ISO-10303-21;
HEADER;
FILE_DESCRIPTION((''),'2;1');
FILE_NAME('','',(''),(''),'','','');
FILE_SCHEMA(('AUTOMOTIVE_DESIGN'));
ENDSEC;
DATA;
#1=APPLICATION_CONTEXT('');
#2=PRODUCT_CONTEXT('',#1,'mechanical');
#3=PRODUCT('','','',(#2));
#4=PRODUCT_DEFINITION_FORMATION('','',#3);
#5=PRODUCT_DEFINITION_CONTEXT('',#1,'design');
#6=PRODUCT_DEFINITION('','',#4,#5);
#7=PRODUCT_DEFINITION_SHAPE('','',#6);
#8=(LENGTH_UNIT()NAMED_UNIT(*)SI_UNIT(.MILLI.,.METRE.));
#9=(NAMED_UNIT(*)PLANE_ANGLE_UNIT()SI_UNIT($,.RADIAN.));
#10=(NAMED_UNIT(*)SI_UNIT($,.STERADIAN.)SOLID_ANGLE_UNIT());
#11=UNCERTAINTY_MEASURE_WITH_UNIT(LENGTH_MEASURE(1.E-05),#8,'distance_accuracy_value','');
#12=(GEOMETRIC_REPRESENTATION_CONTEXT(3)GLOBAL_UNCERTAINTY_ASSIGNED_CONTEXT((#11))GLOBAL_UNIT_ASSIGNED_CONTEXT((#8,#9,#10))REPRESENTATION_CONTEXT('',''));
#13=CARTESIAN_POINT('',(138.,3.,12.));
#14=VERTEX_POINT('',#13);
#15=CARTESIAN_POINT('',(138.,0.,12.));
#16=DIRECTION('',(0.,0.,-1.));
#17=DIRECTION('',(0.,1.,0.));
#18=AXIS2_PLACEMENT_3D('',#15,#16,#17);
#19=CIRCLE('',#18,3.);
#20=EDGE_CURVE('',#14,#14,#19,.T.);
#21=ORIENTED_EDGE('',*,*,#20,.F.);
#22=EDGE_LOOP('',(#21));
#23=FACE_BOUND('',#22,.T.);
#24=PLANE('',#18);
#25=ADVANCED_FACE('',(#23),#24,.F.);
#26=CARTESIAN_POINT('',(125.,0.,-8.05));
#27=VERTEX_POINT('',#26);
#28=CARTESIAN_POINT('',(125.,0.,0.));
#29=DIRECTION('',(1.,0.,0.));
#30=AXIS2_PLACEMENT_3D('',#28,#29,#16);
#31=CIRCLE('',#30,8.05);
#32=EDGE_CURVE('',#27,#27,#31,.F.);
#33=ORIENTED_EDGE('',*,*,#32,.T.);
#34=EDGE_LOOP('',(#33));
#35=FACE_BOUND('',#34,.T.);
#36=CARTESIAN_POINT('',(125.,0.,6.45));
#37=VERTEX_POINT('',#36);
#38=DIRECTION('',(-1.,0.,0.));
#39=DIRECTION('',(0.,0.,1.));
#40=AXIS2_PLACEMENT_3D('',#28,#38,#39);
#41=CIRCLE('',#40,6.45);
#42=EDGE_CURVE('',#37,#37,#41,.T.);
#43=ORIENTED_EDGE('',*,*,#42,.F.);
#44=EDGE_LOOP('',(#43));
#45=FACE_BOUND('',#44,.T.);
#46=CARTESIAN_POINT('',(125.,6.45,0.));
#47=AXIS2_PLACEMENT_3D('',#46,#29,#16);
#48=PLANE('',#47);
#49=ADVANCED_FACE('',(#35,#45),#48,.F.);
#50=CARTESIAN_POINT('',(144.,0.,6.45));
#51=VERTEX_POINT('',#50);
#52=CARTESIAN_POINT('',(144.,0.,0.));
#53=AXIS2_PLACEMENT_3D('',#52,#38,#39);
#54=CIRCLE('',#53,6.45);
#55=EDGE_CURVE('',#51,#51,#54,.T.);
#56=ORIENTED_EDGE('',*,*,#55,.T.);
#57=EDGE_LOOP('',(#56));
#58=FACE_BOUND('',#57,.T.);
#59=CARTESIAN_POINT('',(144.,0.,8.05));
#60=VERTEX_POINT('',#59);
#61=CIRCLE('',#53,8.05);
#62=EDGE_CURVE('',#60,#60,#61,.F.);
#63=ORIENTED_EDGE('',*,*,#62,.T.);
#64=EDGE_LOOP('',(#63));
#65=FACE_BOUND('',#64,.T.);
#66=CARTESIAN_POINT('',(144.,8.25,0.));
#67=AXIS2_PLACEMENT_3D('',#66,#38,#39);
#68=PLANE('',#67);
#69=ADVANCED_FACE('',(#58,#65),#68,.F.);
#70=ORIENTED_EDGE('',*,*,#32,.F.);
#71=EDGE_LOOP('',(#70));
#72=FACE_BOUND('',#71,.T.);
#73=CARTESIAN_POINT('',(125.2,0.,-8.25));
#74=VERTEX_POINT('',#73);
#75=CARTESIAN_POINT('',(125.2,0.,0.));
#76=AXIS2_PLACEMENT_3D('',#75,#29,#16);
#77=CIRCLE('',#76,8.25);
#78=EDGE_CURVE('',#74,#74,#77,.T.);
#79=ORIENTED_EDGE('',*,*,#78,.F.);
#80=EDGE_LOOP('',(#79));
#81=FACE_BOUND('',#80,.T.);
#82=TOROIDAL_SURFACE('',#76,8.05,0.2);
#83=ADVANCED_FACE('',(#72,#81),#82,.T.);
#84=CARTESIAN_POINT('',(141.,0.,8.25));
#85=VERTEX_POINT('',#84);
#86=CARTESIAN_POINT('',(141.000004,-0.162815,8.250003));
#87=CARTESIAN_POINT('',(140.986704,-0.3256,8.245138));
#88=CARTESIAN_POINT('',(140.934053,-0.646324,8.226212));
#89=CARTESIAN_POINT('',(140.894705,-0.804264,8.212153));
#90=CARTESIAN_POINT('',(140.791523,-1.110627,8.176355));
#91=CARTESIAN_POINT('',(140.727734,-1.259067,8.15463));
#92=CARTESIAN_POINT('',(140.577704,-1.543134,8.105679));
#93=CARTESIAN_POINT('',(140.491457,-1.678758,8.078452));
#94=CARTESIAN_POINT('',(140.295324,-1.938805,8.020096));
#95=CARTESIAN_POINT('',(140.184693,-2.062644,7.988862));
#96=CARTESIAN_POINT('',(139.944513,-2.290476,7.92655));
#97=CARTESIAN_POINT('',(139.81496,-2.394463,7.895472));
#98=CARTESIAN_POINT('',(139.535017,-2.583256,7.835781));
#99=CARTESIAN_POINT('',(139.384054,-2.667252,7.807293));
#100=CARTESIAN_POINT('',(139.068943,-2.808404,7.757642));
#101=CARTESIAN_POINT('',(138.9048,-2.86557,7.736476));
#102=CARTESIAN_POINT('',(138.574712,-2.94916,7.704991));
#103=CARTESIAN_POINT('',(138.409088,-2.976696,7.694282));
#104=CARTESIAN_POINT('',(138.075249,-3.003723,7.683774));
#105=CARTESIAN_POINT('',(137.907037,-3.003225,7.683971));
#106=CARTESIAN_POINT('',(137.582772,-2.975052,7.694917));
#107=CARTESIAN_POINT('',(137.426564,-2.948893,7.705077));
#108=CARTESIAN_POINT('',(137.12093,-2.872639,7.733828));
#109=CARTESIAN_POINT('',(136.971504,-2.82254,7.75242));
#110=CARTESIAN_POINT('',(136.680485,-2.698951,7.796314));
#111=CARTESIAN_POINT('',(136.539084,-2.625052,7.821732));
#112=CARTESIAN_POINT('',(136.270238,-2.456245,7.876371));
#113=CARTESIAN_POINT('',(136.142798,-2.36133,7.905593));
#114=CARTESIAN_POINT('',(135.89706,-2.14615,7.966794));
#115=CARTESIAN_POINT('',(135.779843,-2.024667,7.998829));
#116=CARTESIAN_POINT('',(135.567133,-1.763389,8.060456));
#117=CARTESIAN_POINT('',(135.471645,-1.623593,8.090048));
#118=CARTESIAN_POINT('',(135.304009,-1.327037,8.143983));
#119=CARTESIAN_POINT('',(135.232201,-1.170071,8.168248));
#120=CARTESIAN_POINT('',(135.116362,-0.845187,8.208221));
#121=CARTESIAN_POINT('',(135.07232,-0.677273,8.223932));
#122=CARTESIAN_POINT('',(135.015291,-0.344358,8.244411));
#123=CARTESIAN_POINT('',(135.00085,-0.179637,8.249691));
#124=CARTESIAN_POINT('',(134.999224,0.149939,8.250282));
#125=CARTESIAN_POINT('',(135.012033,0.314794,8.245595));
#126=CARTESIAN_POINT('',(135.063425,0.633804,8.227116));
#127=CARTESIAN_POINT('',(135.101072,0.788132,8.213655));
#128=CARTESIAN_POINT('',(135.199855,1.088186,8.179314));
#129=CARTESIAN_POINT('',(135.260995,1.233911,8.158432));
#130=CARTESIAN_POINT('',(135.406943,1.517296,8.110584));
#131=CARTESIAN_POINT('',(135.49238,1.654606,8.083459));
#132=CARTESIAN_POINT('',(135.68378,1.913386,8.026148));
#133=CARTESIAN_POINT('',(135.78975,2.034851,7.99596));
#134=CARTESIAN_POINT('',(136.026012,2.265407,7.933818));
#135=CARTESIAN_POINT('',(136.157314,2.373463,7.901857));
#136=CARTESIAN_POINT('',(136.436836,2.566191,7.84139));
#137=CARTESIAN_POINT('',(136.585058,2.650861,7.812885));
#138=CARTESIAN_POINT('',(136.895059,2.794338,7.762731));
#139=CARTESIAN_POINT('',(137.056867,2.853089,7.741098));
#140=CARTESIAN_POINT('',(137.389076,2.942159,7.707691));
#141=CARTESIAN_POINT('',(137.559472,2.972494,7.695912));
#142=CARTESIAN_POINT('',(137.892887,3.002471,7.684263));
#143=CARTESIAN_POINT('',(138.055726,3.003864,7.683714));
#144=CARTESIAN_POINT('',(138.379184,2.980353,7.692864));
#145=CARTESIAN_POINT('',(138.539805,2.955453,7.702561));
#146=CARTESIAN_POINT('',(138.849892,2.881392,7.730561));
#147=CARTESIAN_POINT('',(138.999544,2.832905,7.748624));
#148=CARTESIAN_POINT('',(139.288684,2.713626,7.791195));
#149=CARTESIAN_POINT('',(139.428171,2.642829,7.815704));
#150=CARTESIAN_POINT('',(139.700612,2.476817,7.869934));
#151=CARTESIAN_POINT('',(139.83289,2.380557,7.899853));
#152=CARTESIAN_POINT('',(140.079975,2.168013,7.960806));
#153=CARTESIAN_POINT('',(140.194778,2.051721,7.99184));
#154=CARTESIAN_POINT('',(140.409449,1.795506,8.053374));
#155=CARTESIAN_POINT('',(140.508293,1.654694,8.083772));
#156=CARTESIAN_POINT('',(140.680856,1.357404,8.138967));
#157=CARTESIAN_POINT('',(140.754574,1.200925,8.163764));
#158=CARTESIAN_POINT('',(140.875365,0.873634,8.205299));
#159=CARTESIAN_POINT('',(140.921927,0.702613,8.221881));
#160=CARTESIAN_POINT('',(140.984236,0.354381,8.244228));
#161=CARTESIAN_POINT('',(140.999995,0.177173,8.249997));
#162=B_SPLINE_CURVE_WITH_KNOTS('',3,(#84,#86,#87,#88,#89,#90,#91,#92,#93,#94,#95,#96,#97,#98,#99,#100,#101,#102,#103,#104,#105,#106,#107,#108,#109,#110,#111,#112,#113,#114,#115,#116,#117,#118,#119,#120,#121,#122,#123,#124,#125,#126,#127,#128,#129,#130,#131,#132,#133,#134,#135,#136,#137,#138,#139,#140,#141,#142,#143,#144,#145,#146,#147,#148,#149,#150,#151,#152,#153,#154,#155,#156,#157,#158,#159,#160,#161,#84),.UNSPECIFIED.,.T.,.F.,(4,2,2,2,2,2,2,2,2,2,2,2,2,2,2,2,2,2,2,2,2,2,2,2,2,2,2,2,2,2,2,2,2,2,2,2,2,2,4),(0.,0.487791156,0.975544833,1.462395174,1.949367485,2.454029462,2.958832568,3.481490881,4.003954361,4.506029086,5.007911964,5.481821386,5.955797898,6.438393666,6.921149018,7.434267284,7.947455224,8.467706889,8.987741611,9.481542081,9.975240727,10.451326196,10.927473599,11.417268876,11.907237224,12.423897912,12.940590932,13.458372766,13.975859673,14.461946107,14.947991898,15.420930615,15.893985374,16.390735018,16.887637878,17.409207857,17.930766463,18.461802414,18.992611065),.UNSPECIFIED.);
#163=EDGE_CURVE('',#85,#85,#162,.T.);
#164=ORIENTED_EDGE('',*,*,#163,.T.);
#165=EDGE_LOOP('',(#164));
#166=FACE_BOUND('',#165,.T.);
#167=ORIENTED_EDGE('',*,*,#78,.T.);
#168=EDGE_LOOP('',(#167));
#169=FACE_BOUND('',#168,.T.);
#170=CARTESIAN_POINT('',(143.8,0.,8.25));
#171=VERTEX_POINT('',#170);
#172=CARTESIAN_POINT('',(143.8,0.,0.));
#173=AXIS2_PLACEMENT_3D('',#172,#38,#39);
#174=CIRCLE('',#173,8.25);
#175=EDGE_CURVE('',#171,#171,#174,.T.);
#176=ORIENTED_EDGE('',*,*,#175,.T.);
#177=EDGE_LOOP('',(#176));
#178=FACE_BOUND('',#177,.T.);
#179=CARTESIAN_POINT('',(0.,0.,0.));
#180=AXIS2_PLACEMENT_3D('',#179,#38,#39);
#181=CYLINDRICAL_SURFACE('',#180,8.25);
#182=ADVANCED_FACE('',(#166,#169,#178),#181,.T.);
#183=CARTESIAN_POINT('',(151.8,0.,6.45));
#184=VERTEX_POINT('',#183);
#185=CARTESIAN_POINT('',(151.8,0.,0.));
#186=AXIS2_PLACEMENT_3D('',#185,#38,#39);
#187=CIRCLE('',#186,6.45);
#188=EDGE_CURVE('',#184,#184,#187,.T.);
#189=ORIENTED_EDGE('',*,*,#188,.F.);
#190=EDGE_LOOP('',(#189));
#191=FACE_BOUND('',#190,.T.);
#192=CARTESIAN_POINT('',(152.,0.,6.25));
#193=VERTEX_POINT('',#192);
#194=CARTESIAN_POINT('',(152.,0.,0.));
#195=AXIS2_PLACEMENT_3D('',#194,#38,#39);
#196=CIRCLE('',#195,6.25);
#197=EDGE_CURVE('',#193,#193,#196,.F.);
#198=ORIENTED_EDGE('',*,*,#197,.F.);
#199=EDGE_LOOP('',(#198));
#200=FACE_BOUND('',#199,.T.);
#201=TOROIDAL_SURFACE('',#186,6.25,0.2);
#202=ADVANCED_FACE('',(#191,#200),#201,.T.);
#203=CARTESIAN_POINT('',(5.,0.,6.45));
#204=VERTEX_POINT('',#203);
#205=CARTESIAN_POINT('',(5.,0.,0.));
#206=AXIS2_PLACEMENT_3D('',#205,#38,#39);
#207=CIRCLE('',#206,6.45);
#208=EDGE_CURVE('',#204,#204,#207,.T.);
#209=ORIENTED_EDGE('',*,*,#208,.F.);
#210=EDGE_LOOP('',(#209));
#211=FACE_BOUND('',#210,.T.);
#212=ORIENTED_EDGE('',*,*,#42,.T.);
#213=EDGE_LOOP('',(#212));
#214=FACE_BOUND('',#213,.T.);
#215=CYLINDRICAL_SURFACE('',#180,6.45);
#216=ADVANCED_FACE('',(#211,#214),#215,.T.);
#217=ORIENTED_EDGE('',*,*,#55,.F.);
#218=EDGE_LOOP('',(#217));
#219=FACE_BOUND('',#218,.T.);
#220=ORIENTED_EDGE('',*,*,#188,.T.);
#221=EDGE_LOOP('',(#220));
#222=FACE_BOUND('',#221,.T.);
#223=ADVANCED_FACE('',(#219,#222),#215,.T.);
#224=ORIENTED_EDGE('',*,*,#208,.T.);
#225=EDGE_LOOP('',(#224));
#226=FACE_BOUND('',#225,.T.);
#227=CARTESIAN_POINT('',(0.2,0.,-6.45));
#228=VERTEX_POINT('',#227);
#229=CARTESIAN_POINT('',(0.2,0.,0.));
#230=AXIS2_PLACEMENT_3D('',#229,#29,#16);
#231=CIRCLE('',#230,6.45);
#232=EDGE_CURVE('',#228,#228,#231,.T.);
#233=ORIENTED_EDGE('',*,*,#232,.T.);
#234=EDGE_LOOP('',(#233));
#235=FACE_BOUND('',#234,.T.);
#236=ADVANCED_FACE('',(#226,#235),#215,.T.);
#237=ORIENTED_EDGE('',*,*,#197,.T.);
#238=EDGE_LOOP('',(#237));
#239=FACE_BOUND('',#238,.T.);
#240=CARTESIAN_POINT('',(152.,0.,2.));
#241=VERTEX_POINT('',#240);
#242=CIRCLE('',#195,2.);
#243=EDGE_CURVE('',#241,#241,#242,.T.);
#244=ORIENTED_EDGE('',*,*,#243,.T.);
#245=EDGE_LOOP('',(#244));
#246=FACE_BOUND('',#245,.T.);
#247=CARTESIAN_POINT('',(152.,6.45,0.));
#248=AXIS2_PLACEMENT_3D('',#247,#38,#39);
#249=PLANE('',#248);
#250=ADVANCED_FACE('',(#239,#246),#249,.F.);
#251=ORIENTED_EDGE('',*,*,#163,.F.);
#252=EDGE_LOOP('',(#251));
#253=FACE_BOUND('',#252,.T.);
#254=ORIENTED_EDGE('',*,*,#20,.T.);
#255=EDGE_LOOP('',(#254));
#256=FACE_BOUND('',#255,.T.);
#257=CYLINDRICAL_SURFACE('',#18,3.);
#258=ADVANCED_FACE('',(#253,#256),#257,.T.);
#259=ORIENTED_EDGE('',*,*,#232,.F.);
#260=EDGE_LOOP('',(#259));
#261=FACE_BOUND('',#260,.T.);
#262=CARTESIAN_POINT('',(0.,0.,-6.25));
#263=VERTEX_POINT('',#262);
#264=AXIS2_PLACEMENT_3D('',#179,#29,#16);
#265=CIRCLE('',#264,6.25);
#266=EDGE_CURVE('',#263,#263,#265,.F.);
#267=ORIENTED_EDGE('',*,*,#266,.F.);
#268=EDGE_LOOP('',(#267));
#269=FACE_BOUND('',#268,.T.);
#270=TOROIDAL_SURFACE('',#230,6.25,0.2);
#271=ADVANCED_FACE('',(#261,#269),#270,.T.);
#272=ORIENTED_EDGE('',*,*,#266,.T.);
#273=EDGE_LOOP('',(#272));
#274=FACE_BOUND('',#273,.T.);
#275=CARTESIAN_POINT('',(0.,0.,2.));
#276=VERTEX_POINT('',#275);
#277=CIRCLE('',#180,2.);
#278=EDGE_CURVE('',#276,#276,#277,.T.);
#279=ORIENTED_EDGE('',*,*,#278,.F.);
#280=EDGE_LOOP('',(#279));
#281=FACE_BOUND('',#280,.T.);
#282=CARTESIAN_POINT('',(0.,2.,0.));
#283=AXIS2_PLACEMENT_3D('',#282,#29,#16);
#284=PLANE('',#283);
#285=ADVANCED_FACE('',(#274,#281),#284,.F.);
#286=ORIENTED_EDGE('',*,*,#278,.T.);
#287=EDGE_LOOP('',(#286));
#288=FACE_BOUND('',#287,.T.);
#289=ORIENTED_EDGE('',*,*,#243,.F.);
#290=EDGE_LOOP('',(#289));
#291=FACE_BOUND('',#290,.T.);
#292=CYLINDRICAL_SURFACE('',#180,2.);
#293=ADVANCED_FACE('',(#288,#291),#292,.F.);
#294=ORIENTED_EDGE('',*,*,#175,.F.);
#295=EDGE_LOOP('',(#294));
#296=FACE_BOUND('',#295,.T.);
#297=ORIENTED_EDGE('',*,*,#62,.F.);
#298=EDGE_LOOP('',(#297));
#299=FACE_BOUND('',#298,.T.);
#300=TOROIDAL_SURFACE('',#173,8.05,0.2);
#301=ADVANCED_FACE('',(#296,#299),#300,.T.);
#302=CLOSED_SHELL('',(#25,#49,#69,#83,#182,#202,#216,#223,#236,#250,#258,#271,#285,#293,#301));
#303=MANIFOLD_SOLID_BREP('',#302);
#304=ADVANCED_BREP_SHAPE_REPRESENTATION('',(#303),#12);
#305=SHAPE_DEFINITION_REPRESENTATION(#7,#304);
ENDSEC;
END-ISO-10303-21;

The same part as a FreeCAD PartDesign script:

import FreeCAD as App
import Part
import Sketcher

V = App.Vector


def edges_at(feature, points):
    """Names of the edges that pass closest to the given points."""
    edges = feature.Shape.Edges
    near = lambda p: min(range(len(edges)), key=lambda i: edges[i].distToShape(Part.Vertex(*p))[0])
    return sorted({f"Edge{near(p) + 1}" for p in points})

doc = App.newDocument("Part")
body = doc.addObject("PartDesign::Body", "Body")

# Sketch on XY plane
sketch1 = doc.addObject("Sketcher::SketchObject", "Sketch")
body.addObject(sketch1)
sketch1.AttachmentSupport = (doc.XY_Plane, [""])
sketch1.MapMode = "FlatFace"
sketch1.addGeometry(Part.LineSegment(V(0, 2, 0), V(152, 2, 0)), False)
sketch1.addGeometry(Part.LineSegment(V(152, 2, 0), V(152, 6.5, 0)), False)
sketch1.addGeometry(Part.LineSegment(V(152, 6.5, 0), V(144, 6.5, 0)), False)
sketch1.addGeometry(Part.LineSegment(V(144, 6.5, 0), V(144, 8.2, 0)), False)
sketch1.addGeometry(Part.LineSegment(V(144, 8.2, 0), V(125, 8.2, 0)), False)
sketch1.addGeometry(Part.LineSegment(V(125, 8.2, 0), V(125, 6.5, 0)), False)
sketch1.addGeometry(Part.LineSegment(V(125, 6.5, 0), V(0, 6.5, 0)), False)
sketch1.addGeometry(Part.LineSegment(V(0, 6.5, 0), V(0, 2, 0)), False)
sketch1.addConstraint(Sketcher.Constraint("Coincident", 0, 2, 1, 1))
sketch1.addConstraint(Sketcher.Constraint("Coincident", 1, 2, 2, 1))
sketch1.addConstraint(Sketcher.Constraint("Coincident", 2, 2, 3, 1))
sketch1.addConstraint(Sketcher.Constraint("Coincident", 3, 2, 4, 1))
sketch1.addConstraint(Sketcher.Constraint("Coincident", 4, 2, 5, 1))
sketch1.addConstraint(Sketcher.Constraint("Coincident", 5, 2, 6, 1))
sketch1.addConstraint(Sketcher.Constraint("Coincident", 6, 2, 7, 1))
sketch1.addConstraint(Sketcher.Constraint("Coincident", 7, 2, 0, 1))
sketch1.addConstraint(Sketcher.Constraint("Horizontal", 0))
sketch1.addConstraint(Sketcher.Constraint("Vertical", 1))
sketch1.addConstraint(Sketcher.Constraint("Horizontal", 2))
sketch1.addConstraint(Sketcher.Constraint("Vertical", 3))
sketch1.addConstraint(Sketcher.Constraint("Horizontal", 4))
sketch1.addConstraint(Sketcher.Constraint("Vertical", 5))
sketch1.addConstraint(Sketcher.Constraint("Horizontal", 6))
sketch1.addConstraint(Sketcher.Constraint("Vertical", 7))
sketch1.addConstraint(Sketcher.Constraint("PointOnObject", 6, 2, -2))
sketch1.addConstraint(Sketcher.Constraint("Horizontal", 2, 2, 5, 2))
sketch1.addConstraint(Sketcher.Constraint("DistanceX", 0, 1, 0, 2, 152.0))
sketch1.addConstraint(Sketcher.Constraint("DistanceX", 2, 2, 2, 1, 8.0))
sketch1.addConstraint(Sketcher.Constraint("DistanceX", 4, 2, 4, 1, 19.0))
sketch1.addConstraint(Sketcher.Constraint("DistanceY", 3, 1, 3, 2, 1.8))
sketch1.addConstraint(Sketcher.Constraint("DistanceY", -1, 1, 0, 2, 2.0))
sketch1.addConstraint(Sketcher.Constraint("DistanceY", 1, 1, 1, 2, 4.45))
revolution = doc.addObject("PartDesign::Revolution", "Revolution")
body.addObject(revolution)
revolution.Profile = sketch1
revolution.ReferenceAxis = (sketch1, ["H_Axis"])
revolution.Angle = 360
doc.recompute()

fillet = doc.addObject("PartDesign::Fillet", "Fillet")
body.addObject(fillet)
fillet.Base = (revolution, edges_at(revolution, [
    (152, -6.45, 0),
    (144, -8.25, 0),
    (125, -8.25, 0),
    (0, -6.45, 0),
]))
fillet.Radius = 0.2

# Sketch on XY plane
sketch2 = doc.addObject("Sketcher::SketchObject", "Sketch001")
body.addObject(sketch2)
sketch2.AttachmentSupport = (doc.XY_Plane, [""])
sketch2.MapMode = "FlatFace"
sketch2.AttachmentOffset = App.Placement(V(0, 0, 2), App.Rotation())
sketch2.addGeometry(Part.Circle(V(138, 0, 0), V(0, 0, 1), 3), False)
sketch2.addConstraint(Sketcher.Constraint("PointOnObject", 0, 3, -1))
sketch2.addConstraint(Sketcher.Constraint("Diameter", 0, 6.0))
sketch2.addConstraint(Sketcher.Constraint("DistanceX", -1, 1, 0, 3, 138.0))
pad1 = doc.addObject("PartDesign::Pad", "Pad")
body.addObject(pad1)
pad1.Profile = sketch2
pad1.Length = 10

doc.recompute()
